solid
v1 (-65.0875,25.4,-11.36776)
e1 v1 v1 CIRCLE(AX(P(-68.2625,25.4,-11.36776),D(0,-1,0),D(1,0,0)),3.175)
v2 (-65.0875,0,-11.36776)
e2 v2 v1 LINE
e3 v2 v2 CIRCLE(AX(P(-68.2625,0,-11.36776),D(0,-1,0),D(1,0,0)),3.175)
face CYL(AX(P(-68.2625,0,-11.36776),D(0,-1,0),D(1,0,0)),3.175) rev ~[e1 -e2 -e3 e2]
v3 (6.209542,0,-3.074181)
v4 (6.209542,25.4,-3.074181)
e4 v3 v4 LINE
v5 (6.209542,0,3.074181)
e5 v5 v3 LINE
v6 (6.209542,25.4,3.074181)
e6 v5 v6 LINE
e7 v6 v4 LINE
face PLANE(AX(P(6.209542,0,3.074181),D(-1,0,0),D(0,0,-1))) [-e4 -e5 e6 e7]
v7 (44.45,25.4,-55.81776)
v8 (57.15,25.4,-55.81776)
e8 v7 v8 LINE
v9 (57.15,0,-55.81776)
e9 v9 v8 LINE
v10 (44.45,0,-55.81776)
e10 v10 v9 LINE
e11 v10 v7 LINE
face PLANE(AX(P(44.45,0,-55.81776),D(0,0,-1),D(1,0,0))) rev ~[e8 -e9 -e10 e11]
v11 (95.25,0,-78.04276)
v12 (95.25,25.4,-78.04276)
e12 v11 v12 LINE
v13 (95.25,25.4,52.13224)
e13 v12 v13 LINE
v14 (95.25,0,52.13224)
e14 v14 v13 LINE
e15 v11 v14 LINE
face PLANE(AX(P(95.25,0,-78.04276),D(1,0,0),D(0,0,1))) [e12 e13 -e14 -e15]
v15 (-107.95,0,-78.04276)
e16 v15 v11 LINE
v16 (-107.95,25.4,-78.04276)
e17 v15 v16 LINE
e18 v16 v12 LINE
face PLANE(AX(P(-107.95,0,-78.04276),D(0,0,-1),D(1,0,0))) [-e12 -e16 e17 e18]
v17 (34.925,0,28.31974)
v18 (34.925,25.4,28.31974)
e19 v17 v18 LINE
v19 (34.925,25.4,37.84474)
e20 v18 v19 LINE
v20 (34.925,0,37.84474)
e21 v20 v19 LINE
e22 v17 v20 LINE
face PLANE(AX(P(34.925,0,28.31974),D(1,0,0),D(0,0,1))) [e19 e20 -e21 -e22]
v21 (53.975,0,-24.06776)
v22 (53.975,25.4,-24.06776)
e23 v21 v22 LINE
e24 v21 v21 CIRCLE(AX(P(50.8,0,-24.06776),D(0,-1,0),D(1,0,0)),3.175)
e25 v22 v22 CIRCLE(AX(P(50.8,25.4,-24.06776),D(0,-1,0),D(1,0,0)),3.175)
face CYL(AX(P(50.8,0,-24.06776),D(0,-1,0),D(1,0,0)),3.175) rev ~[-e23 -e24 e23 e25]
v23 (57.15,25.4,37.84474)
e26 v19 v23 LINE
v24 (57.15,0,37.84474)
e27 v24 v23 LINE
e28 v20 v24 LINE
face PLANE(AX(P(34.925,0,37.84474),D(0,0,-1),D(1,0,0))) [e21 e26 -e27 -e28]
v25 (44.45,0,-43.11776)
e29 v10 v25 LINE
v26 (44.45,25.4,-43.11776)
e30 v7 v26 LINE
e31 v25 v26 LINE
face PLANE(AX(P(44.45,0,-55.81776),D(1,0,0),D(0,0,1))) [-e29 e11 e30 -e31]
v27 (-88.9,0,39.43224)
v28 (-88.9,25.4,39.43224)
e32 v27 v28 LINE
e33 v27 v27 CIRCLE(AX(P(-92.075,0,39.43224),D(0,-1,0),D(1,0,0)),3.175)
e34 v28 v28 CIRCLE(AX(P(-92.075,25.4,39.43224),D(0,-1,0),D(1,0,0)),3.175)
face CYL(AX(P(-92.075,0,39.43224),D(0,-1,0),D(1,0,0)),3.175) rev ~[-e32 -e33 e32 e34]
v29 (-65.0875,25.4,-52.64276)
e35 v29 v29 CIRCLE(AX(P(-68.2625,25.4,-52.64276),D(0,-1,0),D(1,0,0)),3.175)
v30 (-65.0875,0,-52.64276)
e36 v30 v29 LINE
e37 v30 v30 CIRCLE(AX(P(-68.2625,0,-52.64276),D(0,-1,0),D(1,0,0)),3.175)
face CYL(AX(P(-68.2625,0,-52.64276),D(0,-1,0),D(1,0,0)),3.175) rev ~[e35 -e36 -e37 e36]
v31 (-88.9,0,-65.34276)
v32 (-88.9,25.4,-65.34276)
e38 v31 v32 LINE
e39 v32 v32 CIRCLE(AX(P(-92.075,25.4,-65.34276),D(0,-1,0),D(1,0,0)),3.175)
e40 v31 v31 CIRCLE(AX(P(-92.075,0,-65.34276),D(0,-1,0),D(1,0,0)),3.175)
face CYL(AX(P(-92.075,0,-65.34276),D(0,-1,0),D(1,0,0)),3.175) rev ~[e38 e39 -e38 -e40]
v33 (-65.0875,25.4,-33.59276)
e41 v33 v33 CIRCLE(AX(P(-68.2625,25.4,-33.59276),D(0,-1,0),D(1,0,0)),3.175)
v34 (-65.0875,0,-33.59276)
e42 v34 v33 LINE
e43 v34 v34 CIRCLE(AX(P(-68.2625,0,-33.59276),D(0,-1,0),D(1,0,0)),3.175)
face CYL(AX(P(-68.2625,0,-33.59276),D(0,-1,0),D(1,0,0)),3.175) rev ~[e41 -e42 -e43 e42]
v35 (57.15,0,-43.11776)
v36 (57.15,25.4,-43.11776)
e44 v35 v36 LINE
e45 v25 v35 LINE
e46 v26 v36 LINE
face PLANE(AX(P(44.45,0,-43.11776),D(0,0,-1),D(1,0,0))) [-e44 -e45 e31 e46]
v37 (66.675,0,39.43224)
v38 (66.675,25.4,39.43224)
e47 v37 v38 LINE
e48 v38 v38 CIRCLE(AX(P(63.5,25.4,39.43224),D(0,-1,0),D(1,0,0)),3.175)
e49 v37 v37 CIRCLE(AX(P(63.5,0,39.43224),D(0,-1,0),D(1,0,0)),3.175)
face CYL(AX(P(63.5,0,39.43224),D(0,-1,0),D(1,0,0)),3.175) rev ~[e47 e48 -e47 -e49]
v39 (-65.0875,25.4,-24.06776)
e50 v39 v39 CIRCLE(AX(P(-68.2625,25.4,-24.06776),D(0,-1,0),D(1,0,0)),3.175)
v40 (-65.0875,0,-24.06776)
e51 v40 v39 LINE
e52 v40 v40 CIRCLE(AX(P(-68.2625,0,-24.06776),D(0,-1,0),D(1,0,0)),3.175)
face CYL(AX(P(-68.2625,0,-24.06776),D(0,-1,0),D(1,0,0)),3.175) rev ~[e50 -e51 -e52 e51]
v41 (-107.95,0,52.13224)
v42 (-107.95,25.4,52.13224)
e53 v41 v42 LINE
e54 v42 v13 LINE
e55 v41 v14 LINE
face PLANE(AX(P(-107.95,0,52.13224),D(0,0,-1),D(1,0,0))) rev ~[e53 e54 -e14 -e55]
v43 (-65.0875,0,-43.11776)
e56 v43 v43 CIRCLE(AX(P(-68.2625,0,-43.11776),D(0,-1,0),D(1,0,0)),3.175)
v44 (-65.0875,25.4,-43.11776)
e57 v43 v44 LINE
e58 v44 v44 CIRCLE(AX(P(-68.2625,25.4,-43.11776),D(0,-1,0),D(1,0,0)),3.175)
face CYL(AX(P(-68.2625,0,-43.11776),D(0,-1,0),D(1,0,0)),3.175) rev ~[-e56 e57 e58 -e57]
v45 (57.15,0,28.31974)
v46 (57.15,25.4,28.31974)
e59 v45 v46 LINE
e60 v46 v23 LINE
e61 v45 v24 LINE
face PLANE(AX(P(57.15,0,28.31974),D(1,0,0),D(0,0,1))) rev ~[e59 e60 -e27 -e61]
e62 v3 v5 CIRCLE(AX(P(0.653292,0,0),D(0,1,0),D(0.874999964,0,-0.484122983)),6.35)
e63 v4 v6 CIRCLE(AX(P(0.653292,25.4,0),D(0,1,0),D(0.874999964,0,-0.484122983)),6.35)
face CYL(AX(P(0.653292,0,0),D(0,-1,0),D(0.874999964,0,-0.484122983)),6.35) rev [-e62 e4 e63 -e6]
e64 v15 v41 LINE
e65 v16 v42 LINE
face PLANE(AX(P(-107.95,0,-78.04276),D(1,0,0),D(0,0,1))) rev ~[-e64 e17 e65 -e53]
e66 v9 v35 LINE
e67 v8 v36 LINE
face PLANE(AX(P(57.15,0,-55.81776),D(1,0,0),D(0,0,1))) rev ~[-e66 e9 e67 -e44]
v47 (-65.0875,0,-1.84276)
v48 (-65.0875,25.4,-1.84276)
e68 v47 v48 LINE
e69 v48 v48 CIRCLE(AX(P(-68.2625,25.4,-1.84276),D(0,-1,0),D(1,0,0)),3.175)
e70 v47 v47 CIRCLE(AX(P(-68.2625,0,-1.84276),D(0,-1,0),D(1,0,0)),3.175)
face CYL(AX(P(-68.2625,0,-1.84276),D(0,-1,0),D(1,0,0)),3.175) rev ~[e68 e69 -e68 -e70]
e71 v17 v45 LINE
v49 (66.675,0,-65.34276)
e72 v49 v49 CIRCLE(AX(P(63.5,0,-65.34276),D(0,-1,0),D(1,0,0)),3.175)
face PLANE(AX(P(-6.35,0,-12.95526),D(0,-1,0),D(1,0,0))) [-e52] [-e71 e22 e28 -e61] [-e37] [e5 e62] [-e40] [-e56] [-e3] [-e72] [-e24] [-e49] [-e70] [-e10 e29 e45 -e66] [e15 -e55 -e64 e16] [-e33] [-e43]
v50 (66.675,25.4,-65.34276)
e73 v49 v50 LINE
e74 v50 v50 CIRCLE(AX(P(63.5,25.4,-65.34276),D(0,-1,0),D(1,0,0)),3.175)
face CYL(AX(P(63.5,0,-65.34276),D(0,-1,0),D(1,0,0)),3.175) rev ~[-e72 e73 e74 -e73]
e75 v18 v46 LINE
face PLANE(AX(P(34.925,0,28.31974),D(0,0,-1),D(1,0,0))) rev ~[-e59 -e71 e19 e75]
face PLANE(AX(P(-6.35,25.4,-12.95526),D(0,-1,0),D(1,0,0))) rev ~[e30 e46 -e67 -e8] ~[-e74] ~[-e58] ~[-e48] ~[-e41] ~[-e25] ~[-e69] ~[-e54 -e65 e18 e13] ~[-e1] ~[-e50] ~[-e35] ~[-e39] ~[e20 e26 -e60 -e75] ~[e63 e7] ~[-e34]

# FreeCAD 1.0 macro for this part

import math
import FreeCAD as App
import Part
import Sketcher
from FreeCAD import Vector
Q = App.Units.Quantity

doc = App.newDocument("Part")
params = doc.addObject("Spreadsheet::Sheet", "Params")
for row, (alias, value) in enumerate([
    ("sketch1_diameter", "0.25 in"),
    ("sketch1_width", "8 in"),
    ("sketch1_radius", "0.25 in"),
    ("sketch1_width2", "0.5 in"),
    ("sketch1_width3", "0.875 in"),
    ("pad1_length", "1 in"),
], start=1):
    params.set(f"A{row}", alias)
    params.set(f"B{row}", "=" + value)
    params.setAlias(f"B{row}", alias)

body = doc.addObject("PartDesign::Body", "Body")

sketch1 = body.newObject("Sketcher::SketchObject", "Sketch")
sketch1.AttachmentSupport = (doc.getObject("XZ_Plane"), [""])
sketch1.MapMode = "FlatFace"
sketch1.addGeometry([
    Part.LineSegment(Vector(-108, 52.1, 0), Vector(-108, -78, 0)),
    Part.LineSegment(Vector(-108, -78, 0), Vector(95.2, -78, 0)),
    Part.LineSegment(Vector(95.2, -78, 0), Vector(95.2, 52.1, 0)),
    Part.LineSegment(Vector(95.2, 52.1, 0), Vector(-108, 52.1, 0)),
    Part.Circle(Vector(-92.1, -65.3, 0), Vector(0, 0, 1), 3.2),
    Part.Circle(Vector(-68.3, -52.6, 0), Vector(0, 0, 1), 3.2),
    Part.Circle(Vector(-68.3, -43.1, 0), Vector(0, 0, 1), 3.2),
    Part.Circle(Vector(-68.3, -33.6, 0), Vector(0, 0, 1), 3.2),
    Part.Circle(Vector(-68.3, -24.1, 0), Vector(0, 0, 1), 3.2),
    Part.Circle(Vector(63.5, -65.3, 0), Vector(0, 0, 1), 3.2),
    Part.LineSegment(Vector(57.1, -55.8, 0), Vector(44.5, -55.8, 0)),
    Part.LineSegment(Vector(44.5, -55.8, 0), Vector(44.5, -43.1, 0)),
    Part.LineSegment(Vector(44.5, -43.1, 0), Vector(57.1, -43.1, 0)),
    Part.LineSegment(Vector(57.1, -43.1, 0), Vector(57.1, -55.8, 0)),
    Part.Circle(Vector(50.8, -24.1, 0), Vector(0, 0, 1), 3.2),
    Part.Circle(Vector(-68.3, -11.4, 0), Vector(0, 0, 1), 3.2),
    Part.Circle(Vector(-68.3, -1.8, 0), Vector(0, 0, 1), 3.2),
    Part.Circle(Vector(-92.1, 39.4, 0), Vector(0, 0, 1), 3.2),
    Part.LineSegment(Vector(6.2, 3.1, 0), Vector(6.2, -3.1, 0)),
    Part.ArcOfCircle(Part.Circle(Vector(0.7, 0, 0), Vector(0, 0, 1), 6.4), math.radians(29), math.radians(331)),
    Part.LineSegment(Vector(57.1, 28.3, 0), Vector(34.9, 28.3, 0)),
    Part.LineSegment(Vector(34.9, 28.3, 0), Vector(34.9, 37.8, 0)),
    Part.LineSegment(Vector(34.9, 37.8, 0), Vector(57.1, 37.8, 0)),
    Part.LineSegment(Vector(57.1, 37.8, 0), Vector(57.1, 28.3, 0)),
    Part.Circle(Vector(63.5, 39.4, 0), Vector(0, 0, 1), 3.2),
], False)
sketch1.addConstraint([
    Sketcher.Constraint("Coincident", 0, 2, 1, 1),
    Sketcher.Constraint("Coincident", 1, 2, 2, 1),
    Sketcher.Constraint("Coincident", 2, 2, 3, 1),
    Sketcher.Constraint("Coincident", 3, 2, 0, 1),
    Sketcher.Constraint("Coincident", 10, 2, 11, 1),
    Sketcher.Constraint("Coincident", 11, 2, 12, 1),
    Sketcher.Constraint("Coincident", 12, 2, 13, 1),
    Sketcher.Constraint("Coincident", 13, 2, 10, 1),
    Sketcher.Constraint("Coincident", 18, 1, 19, 1),
    Sketcher.Constraint("Coincident", 19, 2, 18, 2),
    Sketcher.Constraint("Coincident", 20, 2, 21, 1),
    Sketcher.Constraint("Coincident", 21, 2, 22, 1),
    Sketcher.Constraint("Coincident", 22, 2, 23, 1),
    Sketcher.Constraint("Coincident", 23, 2, 20, 1),
    Sketcher.Constraint("Vertical", 0),
    Sketcher.Constraint("Horizontal", 1),
    Sketcher.Constraint("Vertical", 2),
    Sketcher.Constraint("Horizontal", 3),
    Sketcher.Constraint("Horizontal", 10),
    Sketcher.Constraint("Vertical", 11),
    Sketcher.Constraint("Horizontal", 12),
    Sketcher.Constraint("Vertical", 13),
    Sketcher.Constraint("Vertical", 18),
    Sketcher.Constraint("Horizontal", 20),
    Sketcher.Constraint("Vertical", 21),
    Sketcher.Constraint("Horizontal", 22),
    Sketcher.Constraint("Vertical", 23),
    Sketcher.Constraint("Equal", 4, 5),
    Sketcher.Constraint("Equal", 5, 6),
    Sketcher.Constraint("Equal", 6, 7),
    Sketcher.Constraint("Equal", 7, 8),
    Sketcher.Constraint("Equal", 8, 9),
    Sketcher.Constraint("Equal", 9, 14),
    Sketcher.Constraint("Equal", 14, 15),
    Sketcher.Constraint("Equal", 15, 16),
    Sketcher.Constraint("Equal", 16, 17),
    Sketcher.Constraint("Equal", 17, 24),
    Sketcher.Constraint("PointOnObject", 19, 3, -1),
    Sketcher.Constraint("Horizontal", 4, 3, 9, 3),
    Sketcher.Constraint("Horizontal", 8, 3, 14, 3),
    Sketcher.Constraint("Horizontal", 17, 3, 24, 3),
    Sketcher.Constraint("Horizontal", 6, 3, 11, 2),
    Sketcher.Constraint("Vertical", 5, 3, 6, 3),
    Sketcher.Constraint("Vertical", 6, 3, 7, 3),
    Sketcher.Constraint("Vertical", 7, 3, 8, 3),
    Sketcher.Constraint("Vertical", 8, 3, 15, 3),
    Sketcher.Constraint("Vertical", 15, 3, 16, 3),
    Sketcher.Constraint("Vertical", 4, 3, 17, 3),
    Sketcher.Constraint("Vertical", 9, 3, 24, 3),
    Sketcher.Constraint("Vertical", 13, 2, 22, 2),
    Sketcher.Constraint("Equal", 12, 11),
    Sketcher.Constraint("Diameter", 4, Q("0.25 in")),
    Sketcher.Constraint("DistanceX", 1, 1, 1, 2, Q("8 in")),
    Sketcher.Constraint("Radius", 19, Q("0.25 in")),
    Sketcher.Constraint("DistanceX", 10, 2, 10, 1, Q("0.5 in")),
    Sketcher.Constraint("DistanceX", -1, 1, 14, 3, Q("2 in")),
    Sketcher.Constraint("DistanceY", 5, 3, 16, 3, Q("2 in")),
    Sketcher.Constraint("DistanceY", 15, 3, 17, 3, Q("2 in")),
    Sketcher.Constraint("DistanceY", 0, 2, 5, 3, Q("1 in")),
    Sketcher.Constraint("DistanceY", 14, 3, 2, 2, Q("3 in")),
    Sketcher.Constraint("DistanceX", 10, 2, 1, 2, Q("2 in")),
    Sketcher.Constraint("DistanceX", -1, 1, 9, 3, Q("2.5 in")),
    Sketcher.Constraint("DistanceY", 4, 3, 5, 3, Q("0.5 in")),
    Sketcher.Constraint("DistanceY", 8, 3, 15, 3, Q("0.5 in")),
    Sketcher.Constraint("DistanceX", 20, 2, 20, 1, Q("0.875 in")),
    Sketcher.Constraint("DistanceY", 0, 2, 0, 1, Q("5.125 in")),
    Sketcher.Constraint("DistanceY", 21, 1, 21, 2, Q("0.375 in")),
    Sketcher.Constraint("DistanceX", 0, 2, -1, 1, Q("4.25 in")),
    Sketcher.Constraint("DistanceY", 5, 3, 7, 3, Q("0.75 in")),
    Sketcher.Constraint("DistanceY", 6, 3, 8, 3, Q("0.75 in")),
    Sketcher.Constraint("DistanceX", 4, 3, -1, 1, Q("3.625 in")),
    Sketcher.Constraint("DistanceX", 5, 3, -1, 1, Q("2.6875 in")),
    Sketcher.Constraint("DistanceX", 19, 3, 18, 1, Q("0.21875 in")),
    Sketcher.Constraint("DistanceY", 20, 2, 24, 3, Q("0.4375 in")),
    Sketcher.Constraint("DistanceY", 4, 3, -1, 1, Q("65.34276 mm")),
    Sketcher.Constraint("DistanceX", -1, 1, 19, 2, Q("6.209542 mm")),
])
sketch1.setExpression("Constraints[51]", "Params.sketch1_diameter")
sketch1.setExpression("Constraints[52]", "Params.sketch1_width")
sketch1.setExpression("Constraints[53]", "Params.sketch1_radius")
sketch1.setExpression("Constraints[54]", "Params.sketch1_width2")
sketch1.setExpression("Constraints[64]", "Params.sketch1_width3")
pad1 = body.newObject("PartDesign::Pad", "Pad")
pad1.Profile = sketch1
pad1.setExpression("Length", "Params.pad1_length")
pad1.Reversed = True

doc.recompute()
